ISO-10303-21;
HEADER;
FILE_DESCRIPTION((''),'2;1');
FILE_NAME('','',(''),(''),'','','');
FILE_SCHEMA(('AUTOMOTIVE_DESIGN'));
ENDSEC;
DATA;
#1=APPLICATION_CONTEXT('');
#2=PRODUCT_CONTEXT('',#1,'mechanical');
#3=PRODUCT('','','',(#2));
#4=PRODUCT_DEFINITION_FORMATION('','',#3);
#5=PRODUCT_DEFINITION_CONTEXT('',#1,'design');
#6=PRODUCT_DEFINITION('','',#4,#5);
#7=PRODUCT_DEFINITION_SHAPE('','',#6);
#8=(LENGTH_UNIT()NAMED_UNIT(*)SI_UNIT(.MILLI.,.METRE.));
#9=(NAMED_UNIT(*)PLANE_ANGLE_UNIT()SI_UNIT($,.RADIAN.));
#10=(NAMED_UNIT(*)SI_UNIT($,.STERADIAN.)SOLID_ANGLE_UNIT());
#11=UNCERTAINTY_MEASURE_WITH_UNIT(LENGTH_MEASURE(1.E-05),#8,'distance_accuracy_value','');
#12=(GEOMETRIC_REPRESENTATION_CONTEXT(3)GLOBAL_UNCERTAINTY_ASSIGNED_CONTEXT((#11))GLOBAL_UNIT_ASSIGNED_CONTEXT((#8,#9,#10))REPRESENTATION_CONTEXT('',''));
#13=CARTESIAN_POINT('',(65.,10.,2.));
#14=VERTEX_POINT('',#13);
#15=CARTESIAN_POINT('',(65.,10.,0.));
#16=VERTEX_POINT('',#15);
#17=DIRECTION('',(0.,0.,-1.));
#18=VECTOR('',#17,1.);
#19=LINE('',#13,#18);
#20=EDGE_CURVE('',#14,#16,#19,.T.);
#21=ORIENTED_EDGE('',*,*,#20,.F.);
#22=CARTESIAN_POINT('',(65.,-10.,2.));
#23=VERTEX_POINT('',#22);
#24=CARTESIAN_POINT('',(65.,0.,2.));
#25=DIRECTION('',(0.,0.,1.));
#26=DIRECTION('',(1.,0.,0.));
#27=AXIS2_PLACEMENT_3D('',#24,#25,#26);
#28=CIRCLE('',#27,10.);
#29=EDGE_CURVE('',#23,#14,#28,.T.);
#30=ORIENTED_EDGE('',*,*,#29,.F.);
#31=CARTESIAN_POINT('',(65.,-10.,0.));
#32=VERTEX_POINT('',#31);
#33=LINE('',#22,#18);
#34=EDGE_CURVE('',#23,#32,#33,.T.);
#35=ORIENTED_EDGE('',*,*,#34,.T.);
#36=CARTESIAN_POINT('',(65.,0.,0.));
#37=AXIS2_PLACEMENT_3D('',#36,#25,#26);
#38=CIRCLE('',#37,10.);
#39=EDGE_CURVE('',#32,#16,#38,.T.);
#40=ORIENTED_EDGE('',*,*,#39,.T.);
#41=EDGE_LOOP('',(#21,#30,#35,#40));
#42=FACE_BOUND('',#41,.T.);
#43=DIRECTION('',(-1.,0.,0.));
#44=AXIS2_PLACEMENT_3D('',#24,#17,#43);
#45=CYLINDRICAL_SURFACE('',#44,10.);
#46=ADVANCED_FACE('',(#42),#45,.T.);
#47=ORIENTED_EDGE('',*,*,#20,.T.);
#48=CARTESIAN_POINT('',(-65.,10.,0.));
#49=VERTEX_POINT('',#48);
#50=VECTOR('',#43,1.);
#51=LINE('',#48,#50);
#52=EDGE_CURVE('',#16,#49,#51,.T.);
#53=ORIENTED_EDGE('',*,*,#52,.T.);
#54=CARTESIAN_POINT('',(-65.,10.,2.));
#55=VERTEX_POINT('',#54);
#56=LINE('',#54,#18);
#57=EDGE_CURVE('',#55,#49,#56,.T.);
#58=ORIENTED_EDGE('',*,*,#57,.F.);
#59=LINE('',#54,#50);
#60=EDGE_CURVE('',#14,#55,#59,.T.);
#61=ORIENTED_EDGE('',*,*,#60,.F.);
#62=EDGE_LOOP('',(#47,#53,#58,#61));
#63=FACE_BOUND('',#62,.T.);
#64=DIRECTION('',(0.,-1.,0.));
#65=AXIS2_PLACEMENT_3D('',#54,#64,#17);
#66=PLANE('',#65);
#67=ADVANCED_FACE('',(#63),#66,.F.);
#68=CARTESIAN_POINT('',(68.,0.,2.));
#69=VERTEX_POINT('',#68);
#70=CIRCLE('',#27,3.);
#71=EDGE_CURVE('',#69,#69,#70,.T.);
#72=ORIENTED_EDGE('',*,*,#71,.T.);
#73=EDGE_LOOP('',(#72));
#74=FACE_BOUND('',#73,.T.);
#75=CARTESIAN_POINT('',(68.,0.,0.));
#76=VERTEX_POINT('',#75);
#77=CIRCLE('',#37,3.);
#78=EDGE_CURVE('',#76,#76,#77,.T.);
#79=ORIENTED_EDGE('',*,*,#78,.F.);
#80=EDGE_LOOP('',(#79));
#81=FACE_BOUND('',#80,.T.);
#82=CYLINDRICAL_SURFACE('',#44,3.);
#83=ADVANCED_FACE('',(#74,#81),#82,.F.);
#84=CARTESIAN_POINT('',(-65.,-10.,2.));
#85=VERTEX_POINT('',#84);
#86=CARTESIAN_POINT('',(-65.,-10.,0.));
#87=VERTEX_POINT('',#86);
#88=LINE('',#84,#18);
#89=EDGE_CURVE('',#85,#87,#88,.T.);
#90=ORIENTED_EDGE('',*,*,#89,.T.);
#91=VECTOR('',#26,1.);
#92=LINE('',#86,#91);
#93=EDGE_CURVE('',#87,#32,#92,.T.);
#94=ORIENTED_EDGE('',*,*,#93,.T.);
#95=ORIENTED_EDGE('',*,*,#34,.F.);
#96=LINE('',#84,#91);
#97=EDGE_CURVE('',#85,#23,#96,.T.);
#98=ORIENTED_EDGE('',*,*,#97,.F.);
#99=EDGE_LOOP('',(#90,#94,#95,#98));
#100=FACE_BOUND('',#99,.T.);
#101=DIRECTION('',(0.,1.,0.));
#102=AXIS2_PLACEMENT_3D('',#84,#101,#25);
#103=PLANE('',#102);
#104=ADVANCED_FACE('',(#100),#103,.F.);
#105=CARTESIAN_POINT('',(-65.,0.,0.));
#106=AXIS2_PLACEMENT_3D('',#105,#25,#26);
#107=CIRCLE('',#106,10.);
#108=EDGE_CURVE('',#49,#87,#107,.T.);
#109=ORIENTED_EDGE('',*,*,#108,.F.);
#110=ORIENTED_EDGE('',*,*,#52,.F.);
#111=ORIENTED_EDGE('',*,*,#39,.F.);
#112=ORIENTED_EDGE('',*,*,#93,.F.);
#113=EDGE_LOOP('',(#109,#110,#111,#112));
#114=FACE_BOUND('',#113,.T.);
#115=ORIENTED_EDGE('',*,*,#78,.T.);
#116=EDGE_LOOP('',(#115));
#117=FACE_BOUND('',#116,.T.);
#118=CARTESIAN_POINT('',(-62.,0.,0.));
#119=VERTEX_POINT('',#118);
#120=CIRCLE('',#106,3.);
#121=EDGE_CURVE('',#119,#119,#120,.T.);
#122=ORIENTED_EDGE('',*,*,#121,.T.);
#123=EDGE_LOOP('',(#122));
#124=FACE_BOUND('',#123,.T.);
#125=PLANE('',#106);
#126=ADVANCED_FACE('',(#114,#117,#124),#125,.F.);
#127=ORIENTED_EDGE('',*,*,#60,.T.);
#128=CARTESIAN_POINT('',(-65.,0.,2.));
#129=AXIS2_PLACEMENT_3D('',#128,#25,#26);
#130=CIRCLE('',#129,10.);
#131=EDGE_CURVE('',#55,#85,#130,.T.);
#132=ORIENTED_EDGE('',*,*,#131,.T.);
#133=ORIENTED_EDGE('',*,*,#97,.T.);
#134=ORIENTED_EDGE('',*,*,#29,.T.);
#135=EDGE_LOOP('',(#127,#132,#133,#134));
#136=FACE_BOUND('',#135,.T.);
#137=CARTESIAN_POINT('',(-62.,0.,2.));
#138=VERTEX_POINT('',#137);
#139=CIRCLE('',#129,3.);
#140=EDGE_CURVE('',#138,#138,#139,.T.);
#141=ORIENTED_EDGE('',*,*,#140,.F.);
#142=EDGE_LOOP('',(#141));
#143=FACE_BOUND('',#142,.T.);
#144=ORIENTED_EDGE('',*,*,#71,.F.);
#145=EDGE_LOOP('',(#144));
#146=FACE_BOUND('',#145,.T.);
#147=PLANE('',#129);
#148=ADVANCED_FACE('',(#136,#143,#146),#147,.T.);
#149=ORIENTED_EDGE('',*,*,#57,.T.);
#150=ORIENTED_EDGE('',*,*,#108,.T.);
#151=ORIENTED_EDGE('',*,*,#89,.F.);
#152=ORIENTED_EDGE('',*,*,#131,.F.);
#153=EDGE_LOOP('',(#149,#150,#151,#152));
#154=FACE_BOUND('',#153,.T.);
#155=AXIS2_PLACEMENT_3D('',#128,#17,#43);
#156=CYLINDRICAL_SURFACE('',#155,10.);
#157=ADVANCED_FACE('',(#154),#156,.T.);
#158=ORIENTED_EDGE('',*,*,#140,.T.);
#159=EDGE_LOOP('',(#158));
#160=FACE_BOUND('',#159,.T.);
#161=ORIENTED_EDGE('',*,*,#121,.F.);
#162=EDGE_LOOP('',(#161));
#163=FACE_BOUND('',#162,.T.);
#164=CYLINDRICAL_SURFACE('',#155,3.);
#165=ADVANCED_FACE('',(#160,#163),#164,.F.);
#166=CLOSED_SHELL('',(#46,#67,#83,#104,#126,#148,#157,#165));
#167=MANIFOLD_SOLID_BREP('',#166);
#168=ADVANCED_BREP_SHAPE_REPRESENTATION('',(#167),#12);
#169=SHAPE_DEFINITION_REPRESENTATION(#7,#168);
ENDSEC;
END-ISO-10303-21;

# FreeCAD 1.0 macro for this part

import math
import FreeCAD as App
import Part
import Sketcher

doc = App.newDocument("Part")
params = doc.addObject("Spreadsheet::Sheet", "Params")
for row, (alias, value) in enumerate([
    ("sketch1_diameter", "6 mm"),
    ("sketch1_radius", "10 mm"),
    ("sketch1_width", "130 mm"),
    ("pad1_length", "2 mm"),
], start=1):
    params.set(f"A{row}", alias)
    params.set(f"B{row}", "=" + value)
    params.setAlias(f"B{row}", alias)

body = doc.addObject("PartDesign::Body", "Body")

sketch1 = body.newObject("Sketcher::SketchObject", "Sketch")
sketch1.AttachmentSupport = (doc.getObject("XY_Plane"), [""])
sketch1.MapMode = "FlatFace"
sketch1.addGeometry(Part.LineSegment(App.Vector(65, 10, 0), App.Vector(-65, 10, 0)), False)
sketch1.addGeometry(Part.ArcOfCircle(Part.Circle(App.Vector(-65, 0, 0), App.Vector(0, 0, 1), 10), math.radians(90), math.radians(270)), False)
sketch1.addGeometry(Part.LineSegment(App.Vector(-65, -10, 0), App.Vector(65, -10, 0)), False)
sketch1.addGeometry(Part.ArcOfCircle(Part.Circle(App.Vector(65, 0, 0), App.Vector(0, 0, 1), 10), math.radians(-90), math.radians(90)), False)
sketch1.addGeometry(Part.Circle(App.Vector(65, 0, 0), App.Vector(0, 0, 1), 3), False)
sketch1.addGeometry(Part.Circle(App.Vector(-65, 0, 0), App.Vector(0, 0, 1), 3), False)
sketch1.addConstraint(Sketcher.Constraint("Tangent", 0, 2, 1, 1))
sketch1.addConstraint(Sketcher.Constraint("Tangent", 1, 2, 2, 1))
sketch1.addConstraint(Sketcher.Constraint("Tangent", 2, 2, 3, 1))
sketch1.addConstraint(Sketcher.Constraint("Tangent", 3, 2, 0, 1))
sketch1.addConstraint(Sketcher.Constraint("Horizontal", 0))
sketch1.addConstraint(Sketcher.Constraint("Horizontal", 2))
sketch1.addConstraint(Sketcher.Constraint("Coincident", 4, 3, 3, 3))
sketch1.addConstraint(Sketcher.Constraint("Coincident", 5, 3, 1, 3))
sketch1.addConstraint(Sketcher.Constraint("Equal", 4, 5))
sketch1.addConstraint(Sketcher.Constraint("Symmetric", 1, 3, 3, 3, -1, 1))
sketch1.addConstraint(Sketcher.Constraint("Diameter", 4, 6.0))
sketch1.addConstraint(Sketcher.Constraint("Radius", 1, 10.0))
sketch1.addConstraint(Sketcher.Constraint("DistanceX", 0, 2, 0, 1, 130.0))
sketch1.setExpression("Constraints[10]", "Params.sketch1_diameter")
sketch1.setExpression("Constraints[11]", "Params.sketch1_radius")
sketch1.setExpression("Constraints[12]", "Params.sketch1_width")
pad1 = body.newObject("PartDesign::Pad", "Pad")
pad1.Profile = sketch1
pad1.setExpression("Length", "Params.pad1_length")

doc.recompute()
